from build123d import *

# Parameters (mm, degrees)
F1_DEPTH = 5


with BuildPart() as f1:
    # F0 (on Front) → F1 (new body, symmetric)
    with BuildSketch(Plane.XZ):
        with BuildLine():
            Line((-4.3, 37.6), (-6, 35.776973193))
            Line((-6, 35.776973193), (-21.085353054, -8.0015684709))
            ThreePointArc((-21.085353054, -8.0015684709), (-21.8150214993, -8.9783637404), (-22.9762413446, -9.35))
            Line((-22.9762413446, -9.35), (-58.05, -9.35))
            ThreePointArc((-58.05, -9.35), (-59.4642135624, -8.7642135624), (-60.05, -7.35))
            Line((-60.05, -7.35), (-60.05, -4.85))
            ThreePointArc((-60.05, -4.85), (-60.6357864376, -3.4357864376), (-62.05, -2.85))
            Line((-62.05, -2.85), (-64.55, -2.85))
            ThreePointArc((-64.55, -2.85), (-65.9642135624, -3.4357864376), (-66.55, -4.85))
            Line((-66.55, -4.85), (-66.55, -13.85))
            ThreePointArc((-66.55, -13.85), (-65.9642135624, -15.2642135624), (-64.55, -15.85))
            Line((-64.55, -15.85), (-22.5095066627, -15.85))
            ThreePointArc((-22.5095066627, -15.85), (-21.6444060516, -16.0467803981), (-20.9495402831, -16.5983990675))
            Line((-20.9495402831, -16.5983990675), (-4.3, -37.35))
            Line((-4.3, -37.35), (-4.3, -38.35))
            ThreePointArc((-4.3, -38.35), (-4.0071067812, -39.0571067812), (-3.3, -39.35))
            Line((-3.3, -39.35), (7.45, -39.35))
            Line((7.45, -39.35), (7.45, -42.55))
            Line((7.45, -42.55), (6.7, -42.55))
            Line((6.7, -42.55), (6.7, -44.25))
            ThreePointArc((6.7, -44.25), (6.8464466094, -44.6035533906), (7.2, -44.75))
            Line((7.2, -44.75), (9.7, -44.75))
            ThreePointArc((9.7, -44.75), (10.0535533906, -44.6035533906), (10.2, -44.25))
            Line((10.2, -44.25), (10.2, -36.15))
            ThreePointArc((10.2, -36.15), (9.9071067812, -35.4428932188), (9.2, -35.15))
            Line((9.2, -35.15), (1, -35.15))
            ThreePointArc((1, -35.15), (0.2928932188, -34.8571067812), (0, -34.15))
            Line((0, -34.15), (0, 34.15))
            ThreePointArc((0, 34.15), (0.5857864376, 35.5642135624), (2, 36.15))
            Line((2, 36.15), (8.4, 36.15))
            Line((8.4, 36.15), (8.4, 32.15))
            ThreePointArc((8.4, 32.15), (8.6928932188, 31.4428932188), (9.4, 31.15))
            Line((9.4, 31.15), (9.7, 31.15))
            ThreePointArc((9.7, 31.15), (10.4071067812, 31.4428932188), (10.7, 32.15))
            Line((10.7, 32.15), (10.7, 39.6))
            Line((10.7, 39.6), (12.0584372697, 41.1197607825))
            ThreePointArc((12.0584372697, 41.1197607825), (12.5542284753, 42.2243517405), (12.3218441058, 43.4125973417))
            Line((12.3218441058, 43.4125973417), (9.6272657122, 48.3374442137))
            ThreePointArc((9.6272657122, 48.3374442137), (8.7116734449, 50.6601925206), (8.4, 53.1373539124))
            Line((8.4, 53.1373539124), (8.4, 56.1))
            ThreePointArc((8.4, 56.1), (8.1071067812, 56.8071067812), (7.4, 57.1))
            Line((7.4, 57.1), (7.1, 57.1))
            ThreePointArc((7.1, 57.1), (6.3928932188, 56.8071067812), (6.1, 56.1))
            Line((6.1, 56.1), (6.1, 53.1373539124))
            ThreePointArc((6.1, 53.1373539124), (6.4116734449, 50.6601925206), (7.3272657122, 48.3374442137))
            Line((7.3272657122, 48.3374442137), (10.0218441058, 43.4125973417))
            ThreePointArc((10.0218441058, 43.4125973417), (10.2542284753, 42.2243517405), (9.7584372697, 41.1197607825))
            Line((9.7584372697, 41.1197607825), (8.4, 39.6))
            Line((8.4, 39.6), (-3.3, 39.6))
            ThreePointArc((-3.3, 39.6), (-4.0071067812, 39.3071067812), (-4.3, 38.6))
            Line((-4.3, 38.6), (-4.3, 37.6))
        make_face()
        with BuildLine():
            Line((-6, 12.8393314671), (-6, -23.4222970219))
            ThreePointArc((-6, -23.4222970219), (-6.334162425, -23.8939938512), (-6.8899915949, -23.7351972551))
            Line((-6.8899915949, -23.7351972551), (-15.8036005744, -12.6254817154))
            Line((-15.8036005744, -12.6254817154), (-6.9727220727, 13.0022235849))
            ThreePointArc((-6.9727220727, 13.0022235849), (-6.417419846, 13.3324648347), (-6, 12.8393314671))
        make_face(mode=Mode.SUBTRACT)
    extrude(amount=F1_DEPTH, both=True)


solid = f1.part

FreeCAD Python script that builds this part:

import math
import FreeCAD as App
import Part
import Sketcher
Q = App.Units.Quantity

doc = App.newDocument("Part")
body = doc.addObject("PartDesign::Body", "Body")

sketch1 = body.newObject("Sketcher::SketchObject", "Sketch")
sketch1.AttachmentSupport = (doc.getObject("XZ_Plane"), [""])
sketch1.MapMode = "FlatFace"
sketch1.addGeometry(Part.LineSegment(App.Vector(-4.3, 37.6, 0), App.Vector(-6, 35.78, 0)), False)
sketch1.addGeometry(Part.LineSegment(App.Vector(-6, 35.78, 0), App.Vector(-21.09, -8, 0)), False)
sketch1.addGeometry(Part.ArcOfCircle(Part.Circle(App.Vector(-22.98, -7.35, 0), App.Vector(0, 0, 1), 2), math.radians(-90), math.radians(-19)), False)
sketch1.addGeometry(Part.LineSegment(App.Vector(-22.98, -9.35, 0), App.Vector(-58.05, -9.35, 0)), False)
sketch1.addGeometry(Part.ArcOfCircle(Part.Circle(App.Vector(-58.05, -7.35, 0), App.Vector(0, 0, 1), 2), math.radians(180), math.radians(270)), False)
sketch1.addGeometry(Part.LineSegment(App.Vector(-60.05, -7.35, 0), App.Vector(-60.05, -4.85, 0)), False)
sketch1.addGeometry(Part.ArcOfCircle(Part.Circle(App.Vector(-62.05, -4.85, 0), App.Vector(0, 0, 1), 2), math.radians(0), math.radians(90)), False)
sketch1.addGeometry(Part.LineSegment(App.Vector(-62.05, -2.85, 0), App.Vector(-64.55, -2.85, 0)), False)
sketch1.addGeometry(Part.ArcOfCircle(Part.Circle(App.Vector(-64.55, -4.85, 0), App.Vector(0, 0, 1), 2), math.radians(90), math.radians(180)), False)
sketch1.addGeometry(Part.LineSegment(App.Vector(-66.55, -4.85, 0), App.Vector(-66.55, -13.85, 0)), False)
sketch1.addGeometry(Part.ArcOfCircle(Part.Circle(App.Vector(-64.55, -13.85, 0), App.Vector(0, 0, 1), 2), math.radians(180), math.radians(270)), False)
sketch1.addGeometry(Part.LineSegment(App.Vector(-64.55, -15.85, 0), App.Vector(-22.51, -15.85, 0)), False)
sketch1.addGeometry(Part.ArcOfCircle(Part.Circle(App.Vector(-22.51, -17.85, 0), App.Vector(0, 0, 1), 2), math.radians(39), math.radians(90)), False)
sketch1.addGeometry(Part.LineSegment(App.Vector(-20.95, -16.6, 0), App.Vector(-4.3, -37.35, 0)), False)
sketch1.addGeometry(Part.LineSegment(App.Vector(-4.3, -37.35, 0), App.Vector(-4.3, -38.35, 0)), False)
sketch1.addGeometry(Part.ArcOfCircle(Part.Circle(App.Vector(-3.3, -38.35, 0), App.Vector(0, 0, 1), 1), math.radians(180), math.radians(270)), False)
sketch1.addGeometry(Part.LineSegment(App.Vector(-3.3, -39.35, 0), App.Vector(7.45, -39.35, 0)), False)
sketch1.addGeometry(Part.LineSegment(App.Vector(7.45, -39.35, 0), App.Vector(7.45, -42.55, 0)), False)
sketch1.addGeometry(Part.LineSegment(App.Vector(7.45, -42.55, 0), App.Vector(6.7, -42.55, 0)), False)
sketch1.addGeometry(Part.LineSegment(App.Vector(6.7, -42.55, 0), App.Vector(6.7, -44.25, 0)), False)
sketch1.addGeometry(Part.ArcOfCircle(Part.Circle(App.Vector(7.2, -44.25, 0), App.Vector(0, 0, 1), 0.5), math.radians(180), math.radians(270)), False)
sketch1.addGeometry(Part.LineSegment(App.Vector(7.2, -44.75, 0), App.Vector(9.7, -44.75, 0)), False)
sketch1.addGeometry(Part.ArcOfCircle(Part.Circle(App.Vector(9.7, -44.25, 0), App.Vector(0, 0, 1), 0.5), math.radians(-90), math.radians(0)), False)
sketch1.addGeometry(Part.LineSegment(App.Vector(10.2, -44.25, 0), App.Vector(10.2, -36.15, 0)), False)
sketch1.addGeometry(Part.ArcOfCircle(Part.Circle(App.Vector(9.2, -36.15, 0), App.Vector(0, 0, 1), 1), math.radians(0), math.radians(90)), False)
sketch1.addGeometry(Part.LineSegment(App.Vector(9.2, -35.15, 0), App.Vector(1, -35.15, 0)), False)
sketch1.addGeometry(Part.ArcOfCircle(Part.Circle(App.Vector(1, -34.15, 0), App.Vector(0, 0, 1), 1), math.radians(180), math.radians(270)), False)
sketch1.addGeometry(Part.LineSegment(App.Vector(0, -34.15, 0), App.Vector(0, 34.15, 0)), False)
sketch1.addGeometry(Part.ArcOfCircle(Part.Circle(App.Vector(2, 34.15, 0), App.Vector(0, 0, 1), 2), math.radians(90), math.radians(180)), False)
sketch1.addGeometry(Part.LineSegment(App.Vector(2, 36.15, 0), App.Vector(8.4, 36.15, 0)), False)
sketch1.addGeometry(Part.LineSegment(App.Vector(8.4, 36.15, 0), App.Vector(8.4, 32.15, 0)), False)
sketch1.addGeometry(Part.ArcOfCircle(Part.Circle(App.Vector(9.4, 32.15, 0), App.Vector(0, 0, 1), 1), math.radians(180), math.radians(270)), False)
sketch1.addGeometry(Part.LineSegment(App.Vector(9.4, 31.15, 0), App.Vector(9.7, 31.15, 0)), False)
sketch1.addGeometry(Part.ArcOfCircle(Part.Circle(App.Vector(9.7, 32.15, 0), App.Vector(0, 0, 1), 1), math.radians(-90), math.radians(0)), False)
sketch1.addGeometry(Part.LineSegment(App.Vector(10.7, 32.15, 0), App.Vector(10.7, 39.6, 0)), False)
sketch1.addGeometry(Part.LineSegment(App.Vector(10.7, 39.6, 0), App.Vector(12.06, 41.12, 0)), False)
sketch1.addGeometry(Part.ArcOfCircle(Part.Circle(App.Vector(10.57, 42.45, 0), App.Vector(0, 0, 1), 2), math.radians(-42), math.radians(29)), False)
sketch1.addGeometry(Part.LineSegment(App.Vector(12.32, 43.41, 0), App.Vector(9.63, 48.34, 0)), False)
sketch1.addGeometry(Part.ArcOfCircle(Part.Circle(App.Vector(18.4, 53.14, 0), App.Vector(0, 0, 1), 10), math.radians(-180), math.radians(-151)), False)
sketch1.addGeometry(Part.LineSegment(App.Vector(8.4, 53.14, 0), App.Vector(8.4, 56.1, 0)), False)
sketch1.addGeometry(Part.ArcOfCircle(Part.Circle(App.Vector(7.4, 56.1, 0), App.Vector(0, 0, 1), 1), math.radians(0), math.radians(90)), False)
sketch1.addGeometry(Part.LineSegment(App.Vector(7.4, 57.1, 0), App.Vector(7.1, 57.1, 0)), False)
sketch1.addGeometry(Part.ArcOfCircle(Part.Circle(App.Vector(7.1, 56.1, 0), App.Vector(0, 0, 1), 1), math.radians(90), math.radians(180)), False)
sketch1.addGeometry(Part.LineSegment(App.Vector(6.1, 56.1, 0), App.Vector(6.1, 53.14, 0)), False)
sketch1.addGeometry(Part.ArcOfCircle(Part.Circle(App.Vector(16.1, 53.14, 0), App.Vector(0, 0, 1), 10), math.radians(-180), math.radians(-151)), False)
sketch1.addGeometry(Part.LineSegment(App.Vector(7.33, 48.34, 0), App.Vector(10.02, 43.41, 0)), False)
sketch1.addGeometry(Part.ArcOfCircle(Part.Circle(App.Vector(8.27, 42.45, 0), App.Vector(0, 0, 1), 2), math.radians(-42), math.radians(29)), False)
sketch1.addGeometry(Part.LineSegment(App.Vector(9.76, 41.12, 0), App.Vector(8.4, 39.6, 0)), False)
sketch1.addGeometry(Part.LineSegment(App.Vector(8.4, 39.6, 0), App.Vector(-3.3, 39.6, 0)), False)
sketch1.addGeometry(Part.ArcOfCircle(Part.Circle(App.Vector(-3.3, 38.6, 0), App.Vector(0, 0, 1), 1), math.radians(90), math.radians(180)), False)
sketch1.addGeometry(Part.LineSegment(App.Vector(-4.3, 38.6, 0), App.Vector(-4.3, 37.6, 0)), False)
sketch1.addGeometry(Part.ArcOfCircle(Part.Circle(App.Vector(-6.5, 12.84, 0), App.Vector(0, 0, 1), 0.5), math.radians(0), math.radians(161)), False)
sketch1.addGeometry(Part.LineSegment(App.Vector(-6, 12.84, 0), App.Vector(-6, -23.42, 0)), False)
sketch1.addGeometry(Part.ArcOfCircle(Part.Circle(App.Vector(-6.5, -23.42, 0), App.Vector(0, 0, 1), 0.5), math.radians(-141), math.radians(0)), False)
sketch1.addGeometry(Part.LineSegment(App.Vector(-6.89, -23.74, 0), App.Vector(-15.8, -12.63, 0)), False)
sketch1.addGeometry(Part.LineSegment(App.Vector(-15.8, -12.63, 0), App.Vector(-6.97, 13, 0)), False)
sketch1.addConstraint(Sketcher.Constraint("Coincident", 0, 2, 1, 1))
sketch1.addConstraint(Sketcher.Constraint("Tangent", 1, 2, 2, 2))
sketch1.addConstraint(Sketcher.Constraint("Tangent", 2, 1, 3, 1))
sketch1.addConstraint(Sketcher.Constraint("Tangent", 3, 2, 4, 2))
sketch1.addConstraint(Sketcher.Constraint("Tangent", 4, 1, 5, 1))
sketch1.addConstraint(Sketcher.Constraint("Tangent", 5, 2, 6, 1))
sketch1.addConstraint(Sketcher.Constraint("Tangent", 6, 2, 7, 1))
sketch1.addConstraint(Sketcher.Constraint("Tangent", 7, 2, 8, 1))
sketch1.addConstraint(Sketcher.Constraint("Tangent", 8, 2, 9, 1))
sketch1.addConstraint(Sketcher.Constraint("Tangent", 9, 2, 10, 1))
sketch1.addConstraint(Sketcher.Constraint("Tangent", 10, 2, 11, 1))
sketch1.addConstraint(Sketcher.Constraint("Tangent", 11, 2, 12, 2))
sketch1.addConstraint(Sketcher.Constraint("Tangent", 12, 1, 13, 1))
sketch1.addConstraint(Sketcher.Constraint("Coincident", 13, 2, 14, 1))
sketch1.addConstraint(Sketcher.Constraint("Tangent", 14, 2, 15, 1))
sketch1.addConstraint(Sketcher.Constraint("Tangent", 15, 2, 16, 1))
sketch1.addConstraint(Sketcher.Constraint("Coincident", 16, 2, 17, 1))
sketch1.addConstraint(Sketcher.Constraint("Coincident", 17, 2, 18, 1))
sketch1.addConstraint(Sketcher.Constraint("Coincident", 18, 2, 19, 1))
sketch1.addConstraint(Sketcher.Constraint("Tangent", 19, 2, 20, 1))
sketch1.addConstraint(Sketcher.Constraint("Tangent", 20, 2, 21, 1))
sketch1.addConstraint(Sketcher.Constraint("Tangent", 21, 2, 22, 1))
sketch1.addConstraint(Sketcher.Constraint("Tangent", 22, 2, 23, 1))
sketch1.addConstraint(Sketcher.Constraint("Tangent", 23, 2, 24, 1))
sketch1.addConstraint(Sketcher.Constraint("Tangent", 24, 2, 25, 1))
sketch1.addConstraint(Sketcher.Constraint("Tangent", 25, 2, 26, 2))
sketch1.addConstraint(Sketcher.Constraint("Tangent", 26, 1, 27, 1))
sketch1.addConstraint(Sketcher.Constraint("Tangent", 27, 2, 28, 2))
sketch1.addConstraint(Sketcher.Constraint("Tangent", 28, 1, 29, 1))
sketch1.addConstraint(Sketcher.Constraint("Coincident", 29, 2, 30, 1))
sketch1.addConstraint(Sketcher.Constraint("Tangent", 30, 2, 31, 1))
sketch1.addConstraint(Sketcher.Constraint("Tangent", 31, 2, 32, 1))
sketch1.addConstraint(Sketcher.Constraint("Tangent", 32, 2, 33, 1))
sketch1.addConstraint(Sketcher.Constraint("Tangent", 33, 2, 34, 1))
sketch1.addConstraint(Sketcher.Constraint("Coincident", 34, 2, 35, 1))
sketch1.addConstraint(Sketcher.Constraint("Tangent", 35, 2, 36, 1))
sketch1.addConstraint(Sketcher.Constraint("Tangent", 36, 2, 37, 1))
sketch1.addConstraint(Sketcher.Constraint("Tangent", 37, 2, 38, 2))
sketch1.addConstraint(Sketcher.Constraint("Tangent", 38, 1, 39, 1))
sketch1.addConstraint(Sketcher.Constraint("Tangent", 39, 2, 40, 1))
sketch1.addConstraint(Sketcher.Constraint("Tangent", 40, 2, 41, 1))
sketch1.addConstraint(Sketcher.Constraint("Tangent", 41, 2, 42, 1))
sketch1.addConstraint(Sketcher.Constraint("Tangent", 42, 2, 43, 1))
sketch1.addConstraint(Sketcher.Constraint("Tangent", 43, 2, 44, 1))
sketch1.addConstraint(Sketcher.Constraint("Tangent", 44, 2, 45, 1))
sketch1.addConstraint(Sketcher.Constraint("Tangent", 45, 2, 46, 2))
sketch1.addConstraint(Sketcher.Constraint("Tangent", 46, 1, 47, 1))
sketch1.addConstraint(Sketcher.Constraint("Coincident", 47, 2, 48, 1))
sketch1.addConstraint(Sketcher.Constraint("Tangent", 48, 2, 49, 1))
sketch1.addConstraint(Sketcher.Constraint("Tangent", 49, 2, 50, 1))
sketch1.addConstraint(Sketcher.Constraint("Coincident", 50, 2, 0, 1))
sketch1.addConstraint(Sketcher.Constraint("Tangent", 51, 1, 52, 1))
sketch1.addConstraint(Sketcher.Constraint("Tangent", 52, 2, 53, 2))
sketch1.addConstraint(Sketcher.Constraint("Tangent", 53, 1, 54, 1))
sketch1.addConstraint(Sketcher.Constraint("Coincident", 54, 2, 55, 1))
sketch1.addConstraint(Sketcher.Constraint("Tangent", 55, 2, 51, 2))
sketch1.addConstraint(Sketcher.Constraint("Horizontal", 3))
sketch1.addConstraint(Sketcher.Constraint("Vertical", 5))
sketch1.addConstraint(Sketcher.Constraint("Horizontal", 7))
sketch1.addConstraint(Sketcher.Constraint("Vertical", 9))
sketch1.addConstraint(Sketcher.Constraint("Horizontal", 11))
sketch1.addConstraint(Sketcher.Constraint("Vertical", 14))
sketch1.addConstraint(Sketcher.Constraint("Horizontal", 16))
sketch1.addConstraint(Sketcher.Constraint("Vertical", 17))
sketch1.addConstraint(Sketcher.Constraint("Horizontal", 18))
sketch1.addConstraint(Sketcher.Constraint("Vertical", 19))
sketch1.addConstraint(Sketcher.Constraint("Horizontal", 21))
sketch1.addConstraint(Sketcher.Constraint("Vertical", 23))
sketch1.addConstraint(Sketcher.Constraint("Horizontal", 25))
sketch1.addConstraint(Sketcher.Constraint("Vertical", 27))
sketch1.addConstraint(Sketcher.Constraint("Horizontal", 29))
sketch1.addConstraint(Sketcher.Constraint("Vertical", 30))
sketch1.addConstraint(Sketcher.Constraint("Horizontal", 32))
sketch1.addConstraint(Sketcher.Constraint("Vertical", 34))
sketch1.addConstraint(Sketcher.Constraint("Vertical", 39))
sketch1.addConstraint(Sketcher.Constraint("Horizontal", 41))
sketch1.addConstraint(Sketcher.Constraint("Vertical", 43))
sketch1.addConstraint(Sketcher.Constraint("Horizontal", 48))
sketch1.addConstraint(Sketcher.Constraint("Vertical", 50))
sketch1.addConstraint(Sketcher.Constraint("Vertical", 52))
sketch1.addConstraint(Sketcher.Constraint("Equal", 2, 4))
sketch1.addConstraint(Sketcher.Constraint("Equal", 4, 6))
sketch1.addConstraint(Sketcher.Constraint("Equal", 6, 8))
sketch1.addConstraint(Sketcher.Constraint("Equal", 8, 10))
sketch1.addConstraint(Sketcher.Constraint("Equal", 10, 12))
sketch1.addConstraint(Sketcher.Constraint("Equal", 20, 22))
sketch1.addConstraint(Sketcher.Constraint("Equal", 15, 24))
sketch1.addConstraint(Sketcher.Constraint("Equal", 24, 26))
sketch1.addConstraint(Sketcher.Constraint("Equal", 12, 28))
sketch1.addConstraint(Sketcher.Constraint("Equal", 26, 31))
sketch1.addConstraint(Sketcher.Constraint("Equal", 31, 33))
sketch1.addConstraint(Sketcher.Constraint("Equal", 28, 36))
sketch1.addConstraint(Sketcher.Constraint("Equal", 33, 40))
sketch1.addConstraint(Sketcher.Constraint("Equal", 40, 42))
sketch1.addConstraint(Sketcher.Constraint("Equal", 38, 44))
sketch1.addConstraint(Sketcher.Constraint("Equal", 36, 46))
sketch1.addConstraint(Sketcher.Constraint("Equal", 42, 49))
sketch1.addConstraint(Sketcher.Constraint("Equal", 22, 51))
sketch1.addConstraint(Sketcher.Constraint("Equal", 51, 53))
sketch1.addConstraint(Sketcher.Constraint("Symmetric", 26, 1, 27, 2, -1, 1))
sketch1.addConstraint(Sketcher.Constraint("Parallel", 37, 45))
sketch1.addConstraint(Sketcher.Constraint("Parallel", 35, 47))
sketch1.addConstraint(Sketcher.Constraint("Parallel", 13, 54))
sketch1.addConstraint(Sketcher.Constraint("Parallel", 1, 55))
sketch1.addConstraint(Sketcher.Constraint("Horizontal", 38, 3, 44, 3))
sketch1.addConstraint(Sketcher.Constraint("Horizontal", 36, 3, 46, 3))
sketch1.addConstraint(Sketcher.Constraint("Horizontal", 34, 2, 47, 2))
sketch1.addConstraint(Sketcher.Constraint("Vertical", 22, 3, 33, 3))
sketch1.addConstraint(Sketcher.Constraint("Vertical", 15, 3, 49, 3))
sketch1.addConstraint(Sketcher.Constraint("Vertical", 30, 2, 38, 1))
sketch1.addConstraint(Sketcher.Constraint("Vertical", 39, 2, 47, 2))
sketch1.addConstraint(Sketcher.Constraint("Vertical", 0, 2, 51, 1))
sketch1.addConstraint(Sketcher.Constraint("Equal", 7, 21))
sketch1.addConstraint(Sketcher.Constraint("Equal", 21, 5))
sketch1.addConstraint(Sketcher.Constraint("Equal", 14, 50))
sketch1.addConstraint(Sketcher.Constraint("Radius", 2, 2.0))
sketch1.addConstraint(Sketcher.Constraint("Radius", 15, 1.0))
sketch1.addConstraint(Sketcher.Constraint("Radius", 38, 10.0))
sketch1.addConstraint(Sketcher.Constraint("Radius", 20, 0.5))
sketch1.addConstraint(Sketcher.Constraint("DistanceY", 9, 2, 9, 1, 9.0))
sketch1.addConstraint(Sketcher.Constraint("DistanceY", 14, 2, 14, 1, 1.0))
sketch1.addConstraint(Sketcher.Constraint("DistanceY", 30, 2, 30, 1, 4.0))
sketch1.addConstraint(Sketcher.Constraint("Angle", 0, Q("-133 deg")))
sketch1.addConstraint(Sketcher.Constraint("DistanceX", 7, 2, 7, 1, 2.5))
sketch1.addConstraint(Sketcher.Constraint("DistanceX", 25, 2, 25, 1, 8.2))
sketch1.addConstraint(Sketcher.Constraint("DistanceX", 29, 1, 29, 2, 6.4))
sketch1.addConstraint(Sketcher.Constraint("DistanceX", 48, 2, 48, 1, 11.7))
sketch1.addConstraint(Sketcher.Constraint("DistanceY", 17, 2, 17, 1, 3.2))
sketch1.addConstraint(Sketcher.Constraint("DistanceY", 19, 2, 19, 1, 1.7))
sketch1.addConstraint(Sketcher.Constraint("DistanceY", 23, 1, 23, 2, 8.1))
sketch1.addConstraint(Sketcher.Constraint("DistanceY", 27, 1, 27, 2, 68.3))
sketch1.addConstraint(Sketcher.Constraint("DistanceX", 0, 2, -1, 1, 6.0))
sketch1.addConstraint(Sketcher.Constraint("DistanceX", 16, 1, 16, 2, 10.75))
sketch1.addConstraint(Sketcher.Constraint("DistanceY", 34, 1, 34, 2, 7.45))
sketch1.addConstraint(Sketcher.Constraint("DistanceY", -1, 1, 40, 3, 56.1))
sketch1.addConstraint(Sketcher.Constraint("DistanceY", 2, 3, -1, 1, 7.35))
sketch1.addConstraint(Sketcher.Constraint("DistanceX", 4, 3, -1, 1, 58.05))
sketch1.addConstraint(Sketcher.Constraint("DistanceX", 3, 2, 3, 1, 35.073759))
sketch1.addConstraint(Sketcher.Constraint("DistanceY", 52, 2, 52, 1, 36.261628))
sketch1.addConstraint(Sketcher.Constraint("DistanceY", 12, 1, -1, 1, 16.598399))
sketch1.addConstraint(Sketcher.Constraint("Distance", 37, 5.613811))
sketch1.addConstraint(Sketcher.Constraint("DistanceY", 39, 1, 39, 2, 2.962646))
sketch1.addConstraint(Sketcher.Constraint("DistanceY", -1, 1, 51, 3, 12.839331))
sketch1.addConstraint(Sketcher.Constraint("DistanceY", -1, 1, 35, 2, 41.119761))
pad1 = body.newObject("PartDesign::Pad", "Pad")
pad1.Profile = sketch1
pad1.Length = 10
pad1.Midplane = True

doc.recompute()
